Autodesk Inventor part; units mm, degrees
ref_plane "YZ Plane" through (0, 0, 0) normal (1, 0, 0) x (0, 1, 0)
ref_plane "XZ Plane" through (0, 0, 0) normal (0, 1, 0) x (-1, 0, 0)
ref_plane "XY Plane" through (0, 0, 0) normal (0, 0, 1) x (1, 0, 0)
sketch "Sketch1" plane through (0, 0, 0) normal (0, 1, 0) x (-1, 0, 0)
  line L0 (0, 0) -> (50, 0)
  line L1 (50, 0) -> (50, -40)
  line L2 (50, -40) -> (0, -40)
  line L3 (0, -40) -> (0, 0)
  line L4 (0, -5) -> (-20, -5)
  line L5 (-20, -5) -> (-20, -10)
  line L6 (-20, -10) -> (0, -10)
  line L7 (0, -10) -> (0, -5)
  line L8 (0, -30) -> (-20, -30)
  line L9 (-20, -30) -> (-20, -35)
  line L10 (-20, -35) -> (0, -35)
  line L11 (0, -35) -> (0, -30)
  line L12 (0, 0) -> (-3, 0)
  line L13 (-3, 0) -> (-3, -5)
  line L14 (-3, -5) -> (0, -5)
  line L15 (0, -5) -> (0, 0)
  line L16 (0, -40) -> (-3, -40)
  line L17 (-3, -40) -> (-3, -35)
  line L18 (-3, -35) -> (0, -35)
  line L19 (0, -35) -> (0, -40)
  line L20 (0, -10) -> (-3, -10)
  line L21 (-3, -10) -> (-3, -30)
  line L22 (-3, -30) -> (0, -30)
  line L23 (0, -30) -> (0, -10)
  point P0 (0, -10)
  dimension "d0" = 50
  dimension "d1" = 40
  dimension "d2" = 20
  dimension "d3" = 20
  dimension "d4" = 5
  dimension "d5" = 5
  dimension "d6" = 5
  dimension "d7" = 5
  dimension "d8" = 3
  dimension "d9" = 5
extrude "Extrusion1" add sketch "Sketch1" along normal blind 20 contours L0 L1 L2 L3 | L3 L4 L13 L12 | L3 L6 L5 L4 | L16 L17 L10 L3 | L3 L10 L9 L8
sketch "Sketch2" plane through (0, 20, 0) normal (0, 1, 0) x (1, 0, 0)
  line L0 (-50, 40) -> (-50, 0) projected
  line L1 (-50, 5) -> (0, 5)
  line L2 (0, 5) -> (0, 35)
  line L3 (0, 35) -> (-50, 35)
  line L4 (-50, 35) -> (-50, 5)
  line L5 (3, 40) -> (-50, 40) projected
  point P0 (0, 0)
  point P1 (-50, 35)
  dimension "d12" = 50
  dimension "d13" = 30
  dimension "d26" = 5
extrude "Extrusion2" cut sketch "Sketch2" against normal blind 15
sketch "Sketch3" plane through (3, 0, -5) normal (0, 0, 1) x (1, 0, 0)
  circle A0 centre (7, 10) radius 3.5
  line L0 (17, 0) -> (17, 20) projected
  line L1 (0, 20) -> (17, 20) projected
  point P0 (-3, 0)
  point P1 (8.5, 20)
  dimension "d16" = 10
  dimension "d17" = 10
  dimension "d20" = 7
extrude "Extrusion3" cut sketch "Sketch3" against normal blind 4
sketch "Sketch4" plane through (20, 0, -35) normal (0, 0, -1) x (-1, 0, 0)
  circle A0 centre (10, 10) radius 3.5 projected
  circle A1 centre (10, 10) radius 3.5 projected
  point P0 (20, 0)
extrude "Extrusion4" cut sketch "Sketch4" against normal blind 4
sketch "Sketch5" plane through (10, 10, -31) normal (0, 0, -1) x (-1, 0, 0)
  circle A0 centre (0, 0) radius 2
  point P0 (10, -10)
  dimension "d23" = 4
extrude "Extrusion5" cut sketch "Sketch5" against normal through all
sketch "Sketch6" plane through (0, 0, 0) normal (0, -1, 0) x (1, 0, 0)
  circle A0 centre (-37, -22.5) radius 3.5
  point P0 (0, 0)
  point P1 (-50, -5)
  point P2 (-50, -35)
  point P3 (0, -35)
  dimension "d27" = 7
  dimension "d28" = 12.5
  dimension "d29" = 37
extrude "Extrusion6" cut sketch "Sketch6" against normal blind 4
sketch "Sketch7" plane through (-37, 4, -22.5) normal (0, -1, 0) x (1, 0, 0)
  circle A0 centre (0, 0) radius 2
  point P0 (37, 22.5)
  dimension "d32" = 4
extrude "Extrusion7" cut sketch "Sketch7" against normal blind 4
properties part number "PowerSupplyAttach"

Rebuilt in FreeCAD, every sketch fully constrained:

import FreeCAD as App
import Part
import Sketcher

V = App.Vector


def add_polygon(sketch, points):
    """Adds a closed chain of lines whose ends are joined by coincident constraints."""
    first, n = sketch.GeometryCount, len(points)
    for a, b in zip(points, points[1:] + points[:1]):
        sketch.addGeometry(Part.LineSegment(App.Vector(*a, 0), App.Vector(*b, 0)), False)
    for i in range(n):
        sketch.addConstraint(Sketcher.Constraint("Coincident", first + i, 2, first + (i + 1) % n, 1))

doc = App.newDocument("Part")
body = doc.addObject("PartDesign::Body", "Body")

# Sketch on XZ plane
sketch1 = doc.addObject("Sketcher::SketchObject", "Sketch")
body.addObject(sketch1)
sketch1.AttachmentSupport = (doc.XZ_Plane, [""])
sketch1.MapMode = "FlatFace"
add_polygon(sketch1, [(-50, 0), (3, 0), (3, -5), (20, -5), (20, -10), (0, -10), (0, -30), (20, -30), (20, -35), (3, -35), (3, -40), (-50, -40)])  # lines 0-11
sketch1.addConstraint([
    Sketcher.Constraint("Horizontal", 0),
    Sketcher.Constraint("Vertical", 1),
    Sketcher.Constraint("Horizontal", 2),
    Sketcher.Constraint("Vertical", 3),
    Sketcher.Constraint("Horizontal", 4),
    Sketcher.Constraint("Vertical", 5),
    Sketcher.Constraint("Horizontal", 6),
    Sketcher.Constraint("Vertical", 7),
    Sketcher.Constraint("Horizontal", 8),
    Sketcher.Constraint("Vertical", 9),
    Sketcher.Constraint("Horizontal", 10),
    Sketcher.Constraint("Vertical", 11),
    Sketcher.Constraint("PointOnObject", 0, 2, -1),
    Sketcher.Constraint("PointOnObject", 4, 2, -2),
    Sketcher.Constraint("Vertical", 3, 2, 6, 2),
    Sketcher.Constraint("Vertical", 1, 2, 8, 2),
    Sketcher.Constraint("Equal", 1, 3),
    Sketcher.Constraint("Equal", 6, 5),
    Sketcher.Constraint("Equal", 3, 7),
    Sketcher.Constraint("Equal", 7, 9),
    Sketcher.Constraint("DistanceX", 4, 2, 4, 1, 20.0),
    Sketcher.Constraint("DistanceY", 1, 2, 1, 1, 5.0),
    Sketcher.Constraint("DistanceX", -1, 1, 0, 2, 3.0),
    Sketcher.Constraint("DistanceX", 10, 2, -1, 1, 50.0),
])
pad1 = doc.addObject("PartDesign::Pad", "Pad")
body.addObject(pad1)
pad1.Profile = sketch1
pad1.Length = 20
pad1.Reversed = True

# Sketch on XZ plane
sketch2 = doc.addObject("Sketcher::SketchObject", "Sketch001")
body.addObject(sketch2)
sketch2.AttachmentSupport = (doc.XZ_Plane, [""])
sketch2.MapMode = "FlatFace"
sketch2.AttachmentOffset = App.Placement(V(0, 0, -20), App.Rotation())
add_polygon(sketch2, [(0, -35), (-50, -35), (-50, -5), (0, -5)])  # lines 0-3
sketch2.addConstraint([
    Sketcher.Constraint("Horizontal", 0),
    Sketcher.Constraint("Vertical", 1),
    Sketcher.Constraint("Horizontal", 2),
    Sketcher.Constraint("Vertical", 3),
    Sketcher.Constraint("PointOnObject", 2, 2, -2),
    Sketcher.Constraint("DistanceX", 0, 2, 0, 1, 50.0),
    Sketcher.Constraint("DistanceY", 1, 1, 1, 2, 30.0),
    Sketcher.Constraint("DistanceY", 1, 2, -1, 1, 5.0),
])
pocket1 = doc.addObject("PartDesign::Pocket", "Pocket")
body.addObject(pocket1)
pocket1.Profile = sketch2
pocket1.Length = 15
pocket1.Reversed = True

# Sketch on XY plane
sketch3 = doc.addObject("Sketcher::SketchObject", "Sketch002")
body.addObject(sketch3)
sketch3.AttachmentSupport = (doc.XY_Plane, [""])
sketch3.MapMode = "FlatFace"
sketch3.AttachmentOffset = App.Placement(V(0, 0, -5), App.Rotation())
sketch3.addGeometry(Part.Circle(V(10, 10, 0), V(0, 0, 1), 3.5), False)
sketch3.addConstraint([
    Sketcher.Constraint("Diameter", 0, 7.0),
    Sketcher.Constraint("DistanceX", -1, 1, 0, 3, 10.0),
    Sketcher.Constraint("DistanceY", -1, 1, 0, 3, 10.0),
])
pocket2 = doc.addObject("PartDesign::Pocket", "Pocket001")
body.addObject(pocket2)
pocket2.Profile = sketch3
pocket2.Length = 4

# Sketch on XY plane
sketch4 = doc.addObject("Sketcher::SketchObject", "Sketch003")
body.addObject(sketch4)
sketch4.AttachmentSupport = (doc.XY_Plane, [""])
sketch4.MapMode = "FlatFace"
sketch4.AttachmentOffset = App.Placement(V(0, 0, -35), App.Rotation())
sketch4.addGeometry(Part.Circle(V(10, 10, 0), V(0, 0, 1), 3.5), False)
sketch4.addConstraint([
    Sketcher.Constraint("Diameter", 0, 7.0),
    Sketcher.Constraint("DistanceX", -1, 1, 0, 3, 10.0),
    Sketcher.Constraint("DistanceY", -1, 1, 0, 3, 10.0),
])
pocket3 = doc.addObject("PartDesign::Pocket", "Pocket002")
body.addObject(pocket3)
pocket3.Profile = sketch4
pocket3.Length = 4
pocket3.Reversed = True

# Sketch on XY plane
sketch5 = doc.addObject("Sketcher::SketchObject", "Sketch004")
body.addObject(sketch5)
sketch5.AttachmentSupport = (doc.XY_Plane, [""])
sketch5.MapMode = "FlatFace"
sketch5.AttachmentOffset = App.Placement(V(0, 0, -31), App.Rotation())
sketch5.addGeometry(Part.Circle(V(10, 10, 0), V(0, 0, 1), 2), False)
sketch5.addConstraint([
    Sketcher.Constraint("Diameter", 0, 4.0),
    Sketcher.Constraint("DistanceX", -1, 1, 0, 3, 10.0),
    Sketcher.Constraint("DistanceY", -1, 1, 0, 3, 10.0),
])
pocket4 = doc.addObject("PartDesign::Pocket", "Pocket003")
body.addObject(pocket4)
pocket4.Profile = sketch5
pocket4.Type = "ThroughAll"
pocket4.Reversed = True

# Sketch on XZ plane
sketch6 = doc.addObject("Sketcher::SketchObject", "Sketch005")
body.addObject(sketch6)
sketch6.AttachmentSupport = (doc.XZ_Plane, [""])
sketch6.MapMode = "FlatFace"
sketch6.addGeometry(Part.Circle(V(-37, -22.5, 0), V(0, 0, 1), 3.5), False)
sketch6.addConstraint([
    Sketcher.Constraint("Diameter", 0, 7.0),
    Sketcher.Constraint("DistanceX", 0, 3, -1, 1, 37.0),
    Sketcher.Constraint("DistanceY", 0, 3, -1, 1, 22.5),
])
pocket5 = doc.addObject("PartDesign::Pocket", "Pocket004")
body.addObject(pocket5)
pocket5.Profile = sketch6
pocket5.Length = 4

# Sketch on XZ plane
sketch7 = doc.addObject("Sketcher::SketchObject", "Sketch006")
body.addObject(sketch7)
sketch7.AttachmentSupport = (doc.XZ_Plane, [""])
sketch7.MapMode = "FlatFace"
sketch7.AttachmentOffset = App.Placement(V(0, 0, -4), App.Rotation())
sketch7.addGeometry(Part.Circle(V(-37, -22.5, 0), V(0, 0, 1), 2), False)
sketch7.addConstraint([
    Sketcher.Constraint("Diameter", 0, 4.0),
    Sketcher.Constraint("DistanceX", 0, 3, -1, 1, 37.0),
    Sketcher.Constraint("DistanceY", 0, 3, -1, 1, 22.5),
])
pocket6 = doc.addObject("PartDesign::Pocket", "Pocket005")
body.addObject(pocket6)
pocket6.Profile = sketch7
pocket6.Length = 4

doc.recompute()
